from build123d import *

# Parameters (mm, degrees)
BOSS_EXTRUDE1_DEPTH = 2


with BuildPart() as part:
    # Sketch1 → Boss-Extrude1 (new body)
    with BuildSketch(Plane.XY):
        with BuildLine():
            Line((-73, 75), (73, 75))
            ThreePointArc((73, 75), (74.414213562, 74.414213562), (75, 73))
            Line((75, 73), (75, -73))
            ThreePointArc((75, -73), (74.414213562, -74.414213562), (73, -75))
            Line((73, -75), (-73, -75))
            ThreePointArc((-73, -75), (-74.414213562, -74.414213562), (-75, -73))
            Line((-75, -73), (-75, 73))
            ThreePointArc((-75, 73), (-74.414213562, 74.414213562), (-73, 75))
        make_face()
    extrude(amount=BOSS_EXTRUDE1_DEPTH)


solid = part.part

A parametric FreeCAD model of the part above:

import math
import FreeCAD as App
import Part
import Sketcher

doc = App.newDocument("Part")
params = doc.addObject("Spreadsheet::Sheet", "Params")
for row, (alias, value) in enumerate([
    ("sketch1_radius", "2 mm"),
    ("sketch1_width", "146 mm"),
    ("pad1_length", "2 mm"),
], start=1):
    params.set(f"A{row}", alias)
    params.set(f"B{row}", "=" + value)
    params.setAlias(f"B{row}", alias)

body = doc.addObject("PartDesign::Body", "Body")

sketch1 = body.newObject("Sketcher::SketchObject", "Sketch")
sketch1.AttachmentSupport = (doc.getObject("XY_Plane"), [""])
sketch1.MapMode = "FlatFace"
sketch1.addGeometry(Part.LineSegment(App.Vector(73, 75, 0), App.Vector(-73, 75, 0)), False)
sketch1.addGeometry(Part.ArcOfCircle(Part.Circle(App.Vector(-73, 73, 0), App.Vector(0, 0, 1), 2), math.radians(90), math.radians(180)), False)
sketch1.addGeometry(Part.LineSegment(App.Vector(-75, 73, 0), App.Vector(-75, -73, 0)), False)
sketch1.addGeometry(Part.ArcOfCircle(Part.Circle(App.Vector(-73, -73, 0), App.Vector(0, 0, 1), 2), math.radians(-180), math.radians(-90)), False)
sketch1.addGeometry(Part.LineSegment(App.Vector(-73, -75, 0), App.Vector(73, -75, 0)), False)
sketch1.addGeometry(Part.ArcOfCircle(Part.Circle(App.Vector(73, -73, 0), App.Vector(0, 0, 1), 2), math.radians(-90), math.radians(0)), False)
sketch1.addGeometry(Part.LineSegment(App.Vector(75, -73, 0), App.Vector(75, 73, 0)), False)
sketch1.addGeometry(Part.ArcOfCircle(Part.Circle(App.Vector(73, 73, 0), App.Vector(0, 0, 1), 2), math.radians(0), math.radians(90)), False)
sketch1.addConstraint(Sketcher.Constraint("Tangent", 0, 2, 1, 1))
sketch1.addConstraint(Sketcher.Constraint("Tangent", 1, 2, 2, 1))
sketch1.addConstraint(Sketcher.Constraint("Tangent", 2, 2, 3, 1))
sketch1.addConstraint(Sketcher.Constraint("Tangent", 3, 2, 4, 1))
sketch1.addConstraint(Sketcher.Constraint("Tangent", 4, 2, 5, 1))
sketch1.addConstraint(Sketcher.Constraint("Tangent", 5, 2, 6, 1))
sketch1.addConstraint(Sketcher.Constraint("Tangent", 6, 2, 7, 1))
sketch1.addConstraint(Sketcher.Constraint("Tangent", 7, 2, 0, 1))
sketch1.addConstraint(Sketcher.Constraint("Horizontal", 0))
sketch1.addConstraint(Sketcher.Constraint("Vertical", 2))
sketch1.addConstraint(Sketcher.Constraint("Horizontal", 4))
sketch1.addConstraint(Sketcher.Constraint("Vertical", 6))
sketch1.addConstraint(Sketcher.Constraint("Equal", 1, 3))
sketch1.addConstraint(Sketcher.Constraint("Equal", 3, 5))
sketch1.addConstraint(Sketcher.Constraint("Equal", 5, 7))
sketch1.addConstraint(Sketcher.Constraint("Symmetric", 1, 3, 5, 3, -1, 1))
sketch1.addConstraint(Sketcher.Constraint("Equal", 4, 2))
sketch1.addConstraint(Sketcher.Constraint("Radius", 1, 2.0))
sketch1.addConstraint(Sketcher.Constraint("DistanceX", 0, 2, 0, 1, 146.0))
sketch1.setExpression("Constraints[17]", "Params.sketch1_radius")
sketch1.setExpression("Constraints[18]", "Params.sketch1_width")
pad1 = body.newObject("PartDesign::Pad", "Pad")
pad1.Profile = sketch1
pad1.setExpression("Length", "Params.pad1_length")

doc.recompute()
